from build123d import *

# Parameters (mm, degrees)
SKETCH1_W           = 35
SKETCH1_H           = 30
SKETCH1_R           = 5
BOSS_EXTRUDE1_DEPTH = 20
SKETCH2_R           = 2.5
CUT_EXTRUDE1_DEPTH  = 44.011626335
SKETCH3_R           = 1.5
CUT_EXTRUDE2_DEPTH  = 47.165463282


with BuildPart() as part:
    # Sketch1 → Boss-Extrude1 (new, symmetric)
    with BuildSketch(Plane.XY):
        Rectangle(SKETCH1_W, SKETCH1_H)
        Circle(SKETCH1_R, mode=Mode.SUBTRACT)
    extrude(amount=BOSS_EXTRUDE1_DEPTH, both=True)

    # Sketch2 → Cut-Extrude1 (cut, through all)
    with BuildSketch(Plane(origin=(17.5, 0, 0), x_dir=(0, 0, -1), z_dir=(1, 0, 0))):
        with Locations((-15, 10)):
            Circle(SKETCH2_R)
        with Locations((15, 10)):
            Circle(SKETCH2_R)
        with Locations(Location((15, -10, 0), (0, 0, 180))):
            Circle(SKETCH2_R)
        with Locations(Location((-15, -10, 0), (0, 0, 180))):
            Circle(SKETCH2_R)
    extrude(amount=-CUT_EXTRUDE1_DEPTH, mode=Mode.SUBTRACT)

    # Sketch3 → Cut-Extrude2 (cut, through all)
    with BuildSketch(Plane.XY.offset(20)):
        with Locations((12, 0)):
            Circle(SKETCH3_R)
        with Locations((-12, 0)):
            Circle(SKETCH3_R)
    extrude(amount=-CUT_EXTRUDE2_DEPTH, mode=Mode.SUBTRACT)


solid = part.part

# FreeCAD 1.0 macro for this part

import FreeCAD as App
import Part
import Sketcher

V = App.Vector
Q = App.Units.Quantity

doc = App.newDocument("Part")
body = doc.addObject("PartDesign::Body", "Body")

sketch1 = doc.addObject("Sketcher::SketchObject", "Sketch")
body.addObject(sketch1)
sketch1.AttachmentSupport = (doc.XY_Plane, [""])
sketch1.MapMode = "FlatFace"
sketch1.addGeometry([
    Part.LineSegment(V(-18, 15, 0), V(-18, -15, 0)),
    Part.LineSegment(V(-18, -15, 0), V(18, -15, 0)),
    Part.LineSegment(V(18, -15, 0), V(18, 15, 0)),
    Part.LineSegment(V(18, 15, 0), V(-18, 15, 0)),
    Part.Circle(V(0, 0, 0), V(0, 0, 1), 5),
], False)
sketch1.addConstraint([
    Sketcher.Constraint("Coincident", 0, 2, 1, 1),
    Sketcher.Constraint("Coincident", 1, 2, 2, 1),
    Sketcher.Constraint("Coincident", 2, 2, 3, 1),
    Sketcher.Constraint("Coincident", 3, 2, 0, 1),
    Sketcher.Constraint("Vertical", 0),
    Sketcher.Constraint("Horizontal", 1),
    Sketcher.Constraint("Vertical", 2),
    Sketcher.Constraint("Horizontal", 3),
    Sketcher.Constraint("Coincident", 4, 3, -1, 1),
    Sketcher.Constraint("Symmetric", 0, 2, 2, 2, -1, 1),
    Sketcher.Constraint("Diameter", 4, Q("10 mm")),
    Sketcher.Constraint("DistanceX", 1, 1, 1, 2, Q("35 mm")),
    Sketcher.Constraint("DistanceY", 0, 2, 0, 1, Q("30 mm")),
])
pad1 = doc.addObject("PartDesign::Pad", "Pad")
body.addObject(pad1)
pad1.Profile = sketch1
pad1.Length = 40
pad1.Midplane = True

sketch2 = doc.addObject("Sketcher::SketchObject", "Sketch001")
body.addObject(sketch2)
sketch2.AttachmentSupport = (doc.YZ_Plane, [""])
sketch2.MapMode = "FlatFace"
sketch2.AttachmentOffset = App.Placement(V(0, 0, 17.5), App.Rotation())
sketch2.addGeometry([
    Part.Circle(V(10, 15, 0), V(0, 0, 1), 2.5),
    Part.Circle(V(10, -15, 0), V(0, 0, 1), 2.5),
    Part.Circle(V(-10, -15, 0), V(0, 0, 1), 2.5),
    Part.Circle(V(-10, 15, 0), V(0, 0, 1), 2.5),
], False)
sketch2.addConstraint([
    Sketcher.Constraint("Equal", 0, 1),
    Sketcher.Constraint("Equal", 1, 2),
    Sketcher.Constraint("Equal", 2, 3),
    Sketcher.Constraint("Symmetric", 0, 3, 2, 3, -1, 1),
    Sketcher.Constraint("Symmetric", 1, 3, 3, 3, -1, 1),
    Sketcher.Constraint("Symmetric", 1, 3, 2, 3, -2),
    Sketcher.Constraint("Diameter", 0, Q("5 mm")),
    Sketcher.Constraint("DistanceX", -1, 1, 0, 3, Q("10 mm")),
    Sketcher.Constraint("DistanceY", -1, 1, 0, 3, Q("15 mm")),
])
pocket1 = doc.addObject("PartDesign::Pocket", "Pocket")
body.addObject(pocket1)
pocket1.Profile = sketch2
pocket1.Type = "ThroughAll"

sketch3 = doc.addObject("Sketcher::SketchObject", "Sketch002")
body.addObject(sketch3)
sketch3.AttachmentSupport = (doc.XY_Plane, [""])
sketch3.MapMode = "FlatFace"
sketch3.AttachmentOffset = App.Placement(V(0, 0, 20), App.Rotation())
sketch3.addGeometry([
    Part.Circle(V(12, 0, 0), V(0, 0, 1), 1.5),
    Part.Circle(V(-12, 0, 0), V(0, 0, 1), 1.5),
], False)
sketch3.addConstraint([
    Sketcher.Constraint("Equal", 0, 1),
    Sketcher.Constraint("Symmetric", 0, 3, 1, 3, -1, 1),
    Sketcher.Constraint("PointOnObject", 0, 3, -1),
    Sketcher.Constraint("Diameter", 0, Q("3 mm")),
    Sketcher.Constraint("DistanceX", -1, 1, 0, 3, Q("12 mm")),
])
pocket2 = doc.addObject("PartDesign::Pocket", "Pocket001")
body.addObject(pocket2)
pocket2.Profile = sketch3
pocket2.Type = "ThroughAll"

doc.recompute()
